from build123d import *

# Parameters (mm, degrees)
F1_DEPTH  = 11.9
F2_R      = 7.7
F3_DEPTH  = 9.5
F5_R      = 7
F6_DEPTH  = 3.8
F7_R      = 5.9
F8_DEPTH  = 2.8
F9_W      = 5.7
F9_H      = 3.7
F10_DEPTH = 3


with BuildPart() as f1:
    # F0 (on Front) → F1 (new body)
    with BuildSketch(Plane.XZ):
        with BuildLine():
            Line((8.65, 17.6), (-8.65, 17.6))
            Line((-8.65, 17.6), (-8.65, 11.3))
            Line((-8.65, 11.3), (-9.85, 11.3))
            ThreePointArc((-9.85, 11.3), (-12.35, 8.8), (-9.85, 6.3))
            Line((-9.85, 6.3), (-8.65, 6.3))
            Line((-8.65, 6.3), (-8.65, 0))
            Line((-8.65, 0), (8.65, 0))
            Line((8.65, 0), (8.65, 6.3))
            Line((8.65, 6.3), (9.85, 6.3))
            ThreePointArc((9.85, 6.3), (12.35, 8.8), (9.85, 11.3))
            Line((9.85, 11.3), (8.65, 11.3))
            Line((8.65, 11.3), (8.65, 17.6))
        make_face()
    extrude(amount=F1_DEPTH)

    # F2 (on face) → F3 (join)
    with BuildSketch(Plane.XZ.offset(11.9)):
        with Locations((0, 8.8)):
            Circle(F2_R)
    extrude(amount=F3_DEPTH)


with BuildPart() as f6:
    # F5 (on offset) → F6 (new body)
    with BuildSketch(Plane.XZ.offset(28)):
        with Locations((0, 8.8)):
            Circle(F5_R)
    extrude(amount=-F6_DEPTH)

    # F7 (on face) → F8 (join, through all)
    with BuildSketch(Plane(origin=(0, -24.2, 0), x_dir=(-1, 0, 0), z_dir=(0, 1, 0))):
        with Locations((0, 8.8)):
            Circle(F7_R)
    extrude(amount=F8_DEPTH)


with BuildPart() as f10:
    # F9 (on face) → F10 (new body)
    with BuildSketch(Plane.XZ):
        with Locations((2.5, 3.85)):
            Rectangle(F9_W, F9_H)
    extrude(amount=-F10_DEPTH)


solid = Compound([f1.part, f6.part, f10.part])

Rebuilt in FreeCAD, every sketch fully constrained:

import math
import FreeCAD as App
import Part
import Sketcher

V = App.Vector
Q = App.Units.Quantity


def add_polygon(sketch, points):
    """Adds a closed chain of lines whose ends are joined by coincident constraints."""
    first, n = sketch.GeometryCount, len(points)
    for a, b in zip(points, points[1:] + points[:1]):
        sketch.addGeometry(Part.LineSegment(App.Vector(*a, 0), App.Vector(*b, 0)), False)
    for i in range(n):
        sketch.addConstraint(Sketcher.Constraint("Coincident", first + i, 2, first + (i + 1) % n, 1))

doc = App.newDocument("Part")
body = doc.addObject("PartDesign::Body", "Body")

# Sketch on XZ plane
sketch1 = body.newObject("Sketcher::SketchObject", "Sketch")
sketch1.AttachmentSupport = (doc.getObject("XZ_Plane"), [""])
sketch1.MapMode = "FlatFace"
sketch1.addGeometry(Part.LineSegment(V(8.65, 17.6, 0), V(-8.65, 17.6, 0)), False)
sketch1.addGeometry(Part.LineSegment(V(-8.65, 17.6, 0), V(-8.65, 11.3, 0)), False)
sketch1.addGeometry(Part.LineSegment(V(-8.65, 11.3, 0), V(-9.85, 11.3, 0)), False)
sketch1.addGeometry(Part.ArcOfCircle(Part.Circle(V(-9.85, 8.8, 0), V(0, 0, 1), 2.5), math.radians(90), math.radians(270)), False)
sketch1.addGeometry(Part.LineSegment(V(-9.85, 6.3, 0), V(-8.65, 6.3, 0)), False)
sketch1.addGeometry(Part.LineSegment(V(-8.65, 6.3, 0), V(-8.65, 0, 0)), False)
sketch1.addGeometry(Part.LineSegment(V(-8.65, 0, 0), V(8.65, 0, 0)), False)
sketch1.addGeometry(Part.LineSegment(V(8.65, 0, 0), V(8.65, 6.3, 0)), False)
sketch1.addGeometry(Part.LineSegment(V(8.65, 6.3, 0), V(9.85, 6.3, 0)), False)
sketch1.addGeometry(Part.ArcOfCircle(Part.Circle(V(9.85, 8.8, 0), V(0, 0, 1), 2.5), math.radians(-90), math.radians(90)), False)
sketch1.addGeometry(Part.LineSegment(V(9.85, 11.3, 0), V(8.65, 11.3, 0)), False)
sketch1.addGeometry(Part.LineSegment(V(8.65, 11.3, 0), V(8.65, 17.6, 0)), False)
sketch1.addConstraint(Sketcher.Constraint("Coincident", 0, 2, 1, 1))
sketch1.addConstraint(Sketcher.Constraint("Coincident", 1, 2, 2, 1))
sketch1.addConstraint(Sketcher.Constraint("Tangent", 2, 2, 3, 1))
sketch1.addConstraint(Sketcher.Constraint("Tangent", 3, 2, 4, 1))
sketch1.addConstraint(Sketcher.Constraint("Coincident", 4, 2, 5, 1))
sketch1.addConstraint(Sketcher.Constraint("Coincident", 5, 2, 6, 1))
sketch1.addConstraint(Sketcher.Constraint("Coincident", 6, 2, 7, 1))
sketch1.addConstraint(Sketcher.Constraint("Coincident", 7, 2, 8, 1))
sketch1.addConstraint(Sketcher.Constraint("Tangent", 8, 2, 9, 1))
sketch1.addConstraint(Sketcher.Constraint("Tangent", 9, 2, 10, 1))
sketch1.addConstraint(Sketcher.Constraint("Coincident", 10, 2, 11, 1))
sketch1.addConstraint(Sketcher.Constraint("Coincident", 11, 2, 0, 1))
sketch1.addConstraint(Sketcher.Constraint("Horizontal", 0))
sketch1.addConstraint(Sketcher.Constraint("Vertical", 1))
sketch1.addConstraint(Sketcher.Constraint("Horizontal", 2))
sketch1.addConstraint(Sketcher.Constraint("Horizontal", 4))
sketch1.addConstraint(Sketcher.Constraint("Vertical", 5))
sketch1.addConstraint(Sketcher.Constraint("Horizontal", 6))
sketch1.addConstraint(Sketcher.Constraint("Vertical", 7))
sketch1.addConstraint(Sketcher.Constraint("Horizontal", 8))
sketch1.addConstraint(Sketcher.Constraint("Horizontal", 10))
sketch1.addConstraint(Sketcher.Constraint("Vertical", 11))
sketch1.addConstraint(Sketcher.Constraint("Equal", 3, 9))
sketch1.addConstraint(Sketcher.Constraint("Symmetric", 5, 2, 6, 2, -1, 1))
sketch1.addConstraint(Sketcher.Constraint("Symmetric", 3, 3, 9, 3, -2))
sketch1.addConstraint(Sketcher.Constraint("Vertical", 1, 2, 4, 2))
sketch1.addConstraint(Sketcher.Constraint("Vertical", 7, 2, 10, 2))
sketch1.addConstraint(Sketcher.Constraint("Equal", 1, 5))
sketch1.addConstraint(Sketcher.Constraint("Radius", 3, Q("2.5 mm")))
sketch1.addConstraint(Sketcher.Constraint("DistanceX", 0, 2, 0, 1, Q("17.3 mm")))
sketch1.addConstraint(Sketcher.Constraint("DistanceX", 2, 2, 2, 1, Q("1.2 mm")))
sketch1.addConstraint(Sketcher.Constraint("DistanceY", 1, 2, 1, 1, Q("6.3 mm")))
pad1 = body.newObject("PartDesign::Pad", "Pad")
pad1.Profile = sketch1
pad1.Length = 11.9

# Sketch on XZ plane
sketch2 = body.newObject("Sketcher::SketchObject", "Sketch001")
sketch2.AttachmentSupport = (doc.getObject("XZ_Plane"), [""])
sketch2.MapMode = "FlatFace"
sketch2.AttachmentOffset = App.Placement(V(0, 0, 11.9), App.Rotation())
sketch2.addGeometry(Part.Circle(V(0, 8.8, 0), V(0, 0, 1), 7.7), False)
sketch2.addConstraint(Sketcher.Constraint("PointOnObject", 0, 3, -2))
sketch2.addConstraint(Sketcher.Constraint("Diameter", 0, Q("15.4 mm")))
sketch2.addConstraint(Sketcher.Constraint("DistanceY", -1, 1, 0, 3, Q("8.8 mm")))
pad2 = body.newObject("PartDesign::Pad", "Pad001")
pad2.Profile = sketch2
pad2.Length = 9.5
body2 = doc.addObject("PartDesign::Body", "Body001")

# Sketch on XZ plane
sketch3 = body2.newObject("Sketcher::SketchObject", "Sketch002")
sketch3.AttachmentSupport = (doc.getObject("XZ_Plane001"), [""])
sketch3.MapMode = "FlatFace"
sketch3.AttachmentOffset = App.Placement(V(0, 0, 28), App.Rotation())
sketch3.addGeometry(Part.Circle(V(0, 8.8, 0), V(0, 0, 1), 7), False)
sketch3.addConstraint(Sketcher.Constraint("PointOnObject", 0, 3, -2))
sketch3.addConstraint(Sketcher.Constraint("Diameter", 0, Q("14 mm")))
sketch3.addConstraint(Sketcher.Constraint("DistanceY", -1, 1, 0, 3, Q("8.8 mm")))
pad3 = body2.newObject("PartDesign::Pad", "Pad002")
pad3.Profile = sketch3
pad3.Length = 3.8
pad3.Reversed = True

# Sketch on XZ plane
sketch4 = body2.newObject("Sketcher::SketchObject", "Sketch003")
sketch4.AttachmentSupport = (doc.getObject("XZ_Plane001"), [""])
sketch4.MapMode = "FlatFace"
sketch4.AttachmentOffset = App.Placement(V(0, 0, 24.2), App.Rotation())
sketch4.addGeometry(Part.Circle(V(0, 8.8, 0), V(0, 0, 1), 5.9), False)
sketch4.addConstraint(Sketcher.Constraint("PointOnObject", 0, 3, -2))
sketch4.addConstraint(Sketcher.Constraint("Diameter", 0, Q("11.8 mm")))
sketch4.addConstraint(Sketcher.Constraint("DistanceY", -1, 1, 0, 3, Q("8.8 mm")))
pad4 = body2.newObject("PartDesign::Pad", "Pad003")
pad4.Profile = sketch4
pad4.Length = 2.8
pad4.Reversed = True
body3 = doc.addObject("PartDesign::Body", "Body002")

# Sketch on XZ plane
sketch5 = body3.newObject("Sketcher::SketchObject", "Sketch004")
sketch5.AttachmentSupport = (doc.getObject("XZ_Plane002"), [""])
sketch5.MapMode = "FlatFace"
add_polygon(sketch5, [(-0.35, 5.7), (-0.35, 2), (5.35, 2), (5.35, 5.7)])  # lines 0-3
sketch5.addConstraint(Sketcher.Constraint("Vertical", 0))
sketch5.addConstraint(Sketcher.Constraint("Horizontal", 1))
sketch5.addConstraint(Sketcher.Constraint("Vertical", 2))
sketch5.addConstraint(Sketcher.Constraint("Horizontal", 3))
sketch5.addConstraint(Sketcher.Constraint("DistanceX", 1, 1, 1, 2, Q("5.7 mm")))
sketch5.addConstraint(Sketcher.Constraint("DistanceY", 0, 2, 0, 1, Q("3.7 mm")))
sketch5.addConstraint(Sketcher.Constraint("DistanceY", -1, 1, 0, 2, Q("2 mm")))
sketch5.addConstraint(Sketcher.Constraint("DistanceX", 0, 2, -1, 1, Q("0.35 mm")))
pad5 = body3.newObject("PartDesign::Pad", "Pad004")
pad5.Profile = sketch5
pad5.Length = 3
pad5.Reversed = True

doc.recompute()
